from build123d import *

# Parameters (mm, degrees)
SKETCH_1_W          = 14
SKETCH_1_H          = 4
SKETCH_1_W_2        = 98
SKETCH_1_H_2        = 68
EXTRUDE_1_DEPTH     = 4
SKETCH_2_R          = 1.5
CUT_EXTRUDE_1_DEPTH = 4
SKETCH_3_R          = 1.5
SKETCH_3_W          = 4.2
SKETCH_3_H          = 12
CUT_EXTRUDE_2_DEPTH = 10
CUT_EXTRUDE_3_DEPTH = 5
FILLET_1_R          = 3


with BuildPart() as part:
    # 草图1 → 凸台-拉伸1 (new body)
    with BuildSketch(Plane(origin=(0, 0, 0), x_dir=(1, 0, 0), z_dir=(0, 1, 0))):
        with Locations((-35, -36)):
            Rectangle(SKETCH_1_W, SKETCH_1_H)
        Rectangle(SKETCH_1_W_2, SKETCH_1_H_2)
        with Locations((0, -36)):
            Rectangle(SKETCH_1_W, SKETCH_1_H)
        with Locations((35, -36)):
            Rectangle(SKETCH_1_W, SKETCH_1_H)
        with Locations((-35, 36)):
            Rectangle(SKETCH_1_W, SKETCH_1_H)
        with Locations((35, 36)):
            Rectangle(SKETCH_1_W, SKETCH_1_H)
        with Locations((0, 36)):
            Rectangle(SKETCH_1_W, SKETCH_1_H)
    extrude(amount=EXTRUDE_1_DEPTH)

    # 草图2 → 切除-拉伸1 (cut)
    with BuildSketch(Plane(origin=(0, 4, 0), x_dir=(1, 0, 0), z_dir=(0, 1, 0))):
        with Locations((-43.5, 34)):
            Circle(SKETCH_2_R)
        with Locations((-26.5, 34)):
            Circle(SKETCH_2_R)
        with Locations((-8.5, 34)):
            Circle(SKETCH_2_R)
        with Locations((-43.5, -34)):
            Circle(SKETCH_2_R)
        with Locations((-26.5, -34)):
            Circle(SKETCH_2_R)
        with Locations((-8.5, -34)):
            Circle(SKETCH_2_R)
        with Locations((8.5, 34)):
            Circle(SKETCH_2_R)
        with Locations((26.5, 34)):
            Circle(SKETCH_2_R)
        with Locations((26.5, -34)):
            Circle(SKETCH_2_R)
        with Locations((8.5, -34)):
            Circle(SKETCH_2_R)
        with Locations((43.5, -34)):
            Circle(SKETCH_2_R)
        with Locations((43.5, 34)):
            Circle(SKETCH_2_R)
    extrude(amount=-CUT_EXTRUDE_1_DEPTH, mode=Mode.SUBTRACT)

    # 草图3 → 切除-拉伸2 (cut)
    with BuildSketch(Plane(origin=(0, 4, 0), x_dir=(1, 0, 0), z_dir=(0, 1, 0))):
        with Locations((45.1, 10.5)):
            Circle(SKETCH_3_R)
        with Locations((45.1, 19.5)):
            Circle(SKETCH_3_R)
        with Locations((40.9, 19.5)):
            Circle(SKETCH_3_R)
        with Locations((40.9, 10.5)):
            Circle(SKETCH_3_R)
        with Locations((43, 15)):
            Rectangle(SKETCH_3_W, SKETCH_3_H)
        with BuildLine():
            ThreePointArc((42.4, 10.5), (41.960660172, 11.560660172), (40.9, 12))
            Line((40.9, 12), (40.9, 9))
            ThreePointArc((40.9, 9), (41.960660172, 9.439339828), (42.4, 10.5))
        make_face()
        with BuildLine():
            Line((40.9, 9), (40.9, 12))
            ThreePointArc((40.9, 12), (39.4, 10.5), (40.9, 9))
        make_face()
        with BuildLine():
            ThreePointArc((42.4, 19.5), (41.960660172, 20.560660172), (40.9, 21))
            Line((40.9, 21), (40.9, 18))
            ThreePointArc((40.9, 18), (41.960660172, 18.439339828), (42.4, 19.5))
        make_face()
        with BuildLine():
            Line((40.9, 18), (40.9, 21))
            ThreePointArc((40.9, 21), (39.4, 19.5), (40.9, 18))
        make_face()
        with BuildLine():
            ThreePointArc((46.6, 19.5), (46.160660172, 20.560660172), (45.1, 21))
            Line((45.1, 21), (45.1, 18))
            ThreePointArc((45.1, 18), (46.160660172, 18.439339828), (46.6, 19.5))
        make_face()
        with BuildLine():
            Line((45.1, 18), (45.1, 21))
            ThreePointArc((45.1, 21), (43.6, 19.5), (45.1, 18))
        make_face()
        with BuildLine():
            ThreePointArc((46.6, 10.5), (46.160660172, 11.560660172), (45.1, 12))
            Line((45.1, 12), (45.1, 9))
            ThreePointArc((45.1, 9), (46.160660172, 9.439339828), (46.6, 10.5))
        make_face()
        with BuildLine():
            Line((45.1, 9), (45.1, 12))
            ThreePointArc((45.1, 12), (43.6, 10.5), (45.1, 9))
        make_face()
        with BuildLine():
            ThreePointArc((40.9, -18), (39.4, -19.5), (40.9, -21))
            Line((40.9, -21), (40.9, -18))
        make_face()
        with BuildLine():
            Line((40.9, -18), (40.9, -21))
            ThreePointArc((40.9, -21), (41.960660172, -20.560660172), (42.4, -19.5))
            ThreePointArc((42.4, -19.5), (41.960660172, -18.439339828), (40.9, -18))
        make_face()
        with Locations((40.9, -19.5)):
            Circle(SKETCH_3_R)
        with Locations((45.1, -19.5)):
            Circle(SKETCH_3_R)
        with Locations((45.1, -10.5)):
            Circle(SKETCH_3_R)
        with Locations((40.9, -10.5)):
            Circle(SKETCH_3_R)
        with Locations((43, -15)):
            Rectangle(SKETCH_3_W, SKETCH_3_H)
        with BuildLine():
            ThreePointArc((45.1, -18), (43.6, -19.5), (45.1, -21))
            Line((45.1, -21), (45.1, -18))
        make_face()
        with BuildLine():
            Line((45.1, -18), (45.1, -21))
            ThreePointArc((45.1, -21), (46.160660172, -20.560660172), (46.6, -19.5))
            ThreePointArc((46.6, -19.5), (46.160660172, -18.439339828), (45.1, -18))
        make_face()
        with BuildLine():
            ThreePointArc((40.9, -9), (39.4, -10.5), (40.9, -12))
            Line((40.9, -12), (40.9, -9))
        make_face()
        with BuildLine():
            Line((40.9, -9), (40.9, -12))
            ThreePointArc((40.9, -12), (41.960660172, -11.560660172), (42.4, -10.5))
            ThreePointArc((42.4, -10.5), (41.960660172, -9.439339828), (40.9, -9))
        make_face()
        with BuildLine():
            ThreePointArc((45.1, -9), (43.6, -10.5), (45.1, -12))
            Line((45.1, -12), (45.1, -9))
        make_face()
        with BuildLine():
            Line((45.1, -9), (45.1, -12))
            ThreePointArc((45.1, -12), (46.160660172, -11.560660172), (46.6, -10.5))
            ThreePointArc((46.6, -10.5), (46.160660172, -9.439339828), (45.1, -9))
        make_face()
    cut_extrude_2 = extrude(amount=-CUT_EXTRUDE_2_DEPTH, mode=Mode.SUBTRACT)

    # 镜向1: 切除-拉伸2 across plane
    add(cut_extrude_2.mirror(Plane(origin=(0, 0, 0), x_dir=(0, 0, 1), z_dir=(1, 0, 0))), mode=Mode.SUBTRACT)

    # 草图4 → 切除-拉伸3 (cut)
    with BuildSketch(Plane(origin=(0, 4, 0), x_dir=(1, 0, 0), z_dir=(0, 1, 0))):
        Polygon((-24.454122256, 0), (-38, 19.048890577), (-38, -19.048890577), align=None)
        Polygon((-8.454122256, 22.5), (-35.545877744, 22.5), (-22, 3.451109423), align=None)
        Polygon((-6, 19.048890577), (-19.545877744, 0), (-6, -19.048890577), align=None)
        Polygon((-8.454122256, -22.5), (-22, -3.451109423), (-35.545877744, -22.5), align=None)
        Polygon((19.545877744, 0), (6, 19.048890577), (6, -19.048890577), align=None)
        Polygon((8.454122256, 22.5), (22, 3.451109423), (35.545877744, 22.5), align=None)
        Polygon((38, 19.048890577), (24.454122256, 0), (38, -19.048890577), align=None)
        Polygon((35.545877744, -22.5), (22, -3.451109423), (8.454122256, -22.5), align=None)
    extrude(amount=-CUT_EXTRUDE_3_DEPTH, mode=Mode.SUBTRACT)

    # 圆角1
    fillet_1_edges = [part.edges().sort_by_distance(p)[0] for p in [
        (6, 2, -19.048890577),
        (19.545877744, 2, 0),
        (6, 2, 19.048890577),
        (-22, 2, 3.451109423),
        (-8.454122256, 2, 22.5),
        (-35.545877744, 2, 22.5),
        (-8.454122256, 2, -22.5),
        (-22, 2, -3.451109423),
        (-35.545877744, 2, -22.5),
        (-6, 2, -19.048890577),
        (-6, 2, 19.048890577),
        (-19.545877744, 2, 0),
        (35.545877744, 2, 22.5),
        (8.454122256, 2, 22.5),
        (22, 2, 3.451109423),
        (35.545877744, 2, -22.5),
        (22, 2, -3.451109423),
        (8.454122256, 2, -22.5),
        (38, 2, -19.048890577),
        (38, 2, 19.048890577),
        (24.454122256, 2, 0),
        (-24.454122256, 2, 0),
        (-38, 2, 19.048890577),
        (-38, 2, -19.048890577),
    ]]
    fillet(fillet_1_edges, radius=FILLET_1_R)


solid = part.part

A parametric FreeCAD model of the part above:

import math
import FreeCAD as App
import Part
import Sketcher

V = App.Vector
Q = App.Units.Quantity


def edges_at(feature, points):
    """Names of the edges that pass closest to the given points."""
    edges = feature.Shape.Edges
    near = lambda p: min(range(len(edges)), key=lambda i: edges[i].distToShape(Part.Vertex(*p))[0])
    return sorted({f"Edge{near(p) + 1}" for p in points})


def add_polygon(sketch, points):
    """Adds a closed chain of lines whose ends are joined by coincident constraints."""
    first, n = sketch.GeometryCount, len(points)
    for a, b in zip(points, points[1:] + points[:1]):
        sketch.addGeometry(Part.LineSegment(App.Vector(*a, 0), App.Vector(*b, 0)), False)
    for i in range(n):
        sketch.addConstraint(Sketcher.Constraint("Coincident", first + i, 2, first + (i + 1) % n, 1))

doc = App.newDocument("Part")
body = doc.addObject("PartDesign::Body", "Body")

# Sketch on XZ plane
sketch1 = doc.addObject("Sketcher::SketchObject", "Sketch")
body.addObject(sketch1)
sketch1.AttachmentSupport = (doc.XZ_Plane, [""])
sketch1.MapMode = "FlatFace"
add_polygon(sketch1, [(-42, 34), (-42, 38), (-28, 38), (-28, 34), (-7, 34), (-7, 38), (7, 38), (7, 34), (28, 34), (28, 38), (42, 38), (42, 34), (49, 34), (49, -34), (42, -34), (42, -38), (28, -38), (28, -34), (7, -34), (7, -38), (-7, -38), (-7, -34), (-28, -34), (-28, -38), (-42, -38), (-42, -34), (-49, -34), (-49, 34)])  # lines 0-27
sketch1.addConstraint([
    Sketcher.Constraint("Vertical", 0),
    Sketcher.Constraint("Horizontal", 1),
    Sketcher.Constraint("Vertical", 2),
    Sketcher.Constraint("Horizontal", 3),
    Sketcher.Constraint("Vertical", 4),
    Sketcher.Constraint("Horizontal", 5),
    Sketcher.Constraint("Vertical", 6),
    Sketcher.Constraint("Horizontal", 7),
    Sketcher.Constraint("Vertical", 8),
    Sketcher.Constraint("Horizontal", 9),
    Sketcher.Constraint("Vertical", 10),
    Sketcher.Constraint("Horizontal", 11),
    Sketcher.Constraint("Vertical", 12),
    Sketcher.Constraint("Horizontal", 13),
    Sketcher.Constraint("Vertical", 14),
    Sketcher.Constraint("Horizontal", 15),
    Sketcher.Constraint("Vertical", 16),
    Sketcher.Constraint("Horizontal", 17),
    Sketcher.Constraint("Vertical", 18),
    Sketcher.Constraint("Horizontal", 19),
    Sketcher.Constraint("Vertical", 20),
    Sketcher.Constraint("Horizontal", 21),
    Sketcher.Constraint("Vertical", 22),
    Sketcher.Constraint("Horizontal", 23),
    Sketcher.Constraint("Vertical", 24),
    Sketcher.Constraint("Horizontal", 25),
    Sketcher.Constraint("Vertical", 26),
    Sketcher.Constraint("Horizontal", 27),
    Sketcher.Constraint("Symmetric", 0, 2, 14, 2, -1, 1),
    Sketcher.Constraint("Symmetric", 2, 2, 16, 2, -1, 1),
    Sketcher.Constraint("Symmetric", 4, 2, 18, 2, -1, 1),
    Sketcher.Constraint("Symmetric", 6, 2, 20, 2, -1, 1),
    Sketcher.Constraint("Symmetric", 8, 2, 22, 2, -1, 1),
    Sketcher.Constraint("Symmetric", 10, 2, 24, 2, -1, 1),
    Sketcher.Constraint("Symmetric", 12, 2, 26, 2, -1, 1),
    Sketcher.Constraint("Symmetric", 3, 2, 6, 2, -2),
    Sketcher.Constraint("Symmetric", 1, 2, 8, 2, -2),
    Sketcher.Constraint("Symmetric", 13, 2, 24, 2, -2),
    Sketcher.Constraint("Horizontal", 1, 2, 4, 2),
    Sketcher.Constraint("Horizontal", 7, 2, 10, 2),
    Sketcher.Constraint("Equal", 1, 5),
    Sketcher.Constraint("DistanceX", 1, 1, 1, 2, Q("14 mm")),
    Sketcher.Constraint("DistanceX", 3, 1, 3, 2, Q("21 mm")),
    Sketcher.Constraint("DistanceX", 11, 1, 11, 2, Q("7 mm")),
    Sketcher.Constraint("DistanceY", 0, 1, 0, 2, Q("4 mm")),
    Sketcher.Constraint("DistanceY", 12, 2, 12, 1, Q("68 mm")),
])
pad1 = doc.addObject("PartDesign::Pad", "Pad")
body.addObject(pad1)
pad1.Profile = sketch1
pad1.Length = 4
pad1.Reversed = True

# Sketch on XZ plane
sketch2 = doc.addObject("Sketcher::SketchObject", "Sketch001")
body.addObject(sketch2)
sketch2.AttachmentSupport = (doc.XZ_Plane, [""])
sketch2.MapMode = "FlatFace"
sketch2.AttachmentOffset = App.Placement(V(0, 0, -4), App.Rotation())
sketch2.addGeometry([
    Part.Circle(V(-43.5, -34, 0), V(0, 0, 1), 1.5),  # 0
    Part.Circle(V(-26.5, -34, 0), V(0, 0, 1), 1.5),  # 1
    Part.Circle(V(-8.5, -34, 0), V(0, 0, 1), 1.5),  # 2
    Part.Circle(V(-43.5, 34, 0), V(0, 0, 1), 1.5),  # 3
    Part.Circle(V(-26.5, 34, 0), V(0, 0, 1), 1.5),  # 4
    Part.Circle(V(-8.5, 34, 0), V(0, 0, 1), 1.5),  # 5
    Part.Circle(V(8.5, -34, 0), V(0, 0, 1), 1.5),  # 6
    Part.Circle(V(26.5, -34, 0), V(0, 0, 1), 1.5),  # 7
    Part.Circle(V(26.5, 34, 0), V(0, 0, 1), 1.5),  # 8
    Part.Circle(V(8.5, 34, 0), V(0, 0, 1), 1.5),  # 9
    Part.Circle(V(43.5, 34, 0), V(0, 0, 1), 1.5),  # 10
    Part.Circle(V(43.5, -34, 0), V(0, 0, 1), 1.5),  # 11
], False)
sketch2.addConstraint([
    Sketcher.Constraint("Equal", 0, 1),
    Sketcher.Constraint("Equal", 1, 2),
    Sketcher.Constraint("Equal", 2, 3),
    Sketcher.Constraint("Equal", 3, 4),
    Sketcher.Constraint("Equal", 4, 5),
    Sketcher.Constraint("Equal", 5, 6),
    Sketcher.Constraint("Equal", 6, 7),
    Sketcher.Constraint("Equal", 7, 8),
    Sketcher.Constraint("Equal", 8, 9),
    Sketcher.Constraint("Equal", 9, 10),
    Sketcher.Constraint("Equal", 10, 11),
    Sketcher.Constraint("Symmetric", 5, 3, 6, 3, -1, 1),
    Sketcher.Constraint("Symmetric", 4, 3, 7, 3, -1, 1),
    Sketcher.Constraint("Symmetric", 1, 3, 8, 3, -1, 1),
    Sketcher.Constraint("Symmetric", 2, 3, 9, 3, -1, 1),
    Sketcher.Constraint("Symmetric", 0, 3, 10, 3, -1, 1),
    Sketcher.Constraint("Symmetric", 3, 3, 11, 3, -1, 1),
    Sketcher.Constraint("Symmetric", 2, 3, 6, 3, -2),
    Sketcher.Constraint("Symmetric", 1, 3, 7, 3, -2),
    Sketcher.Constraint("Symmetric", 3, 3, 10, 3, -2),
    Sketcher.Constraint("Horizontal", 0, 3, 1, 3),
    Sketcher.Constraint("Horizontal", 1, 3, 2, 3),
    Sketcher.Constraint("Diameter", 0, Q("3 mm")),
    Sketcher.Constraint("DistanceY", 0, 3, -1, 1, Q("34 mm")),
    Sketcher.Constraint("DistanceX", 0, 3, 1, 3, Q("17 mm")),
    Sketcher.Constraint("DistanceX", 1, 3, 2, 3, Q("18 mm")),
    Sketcher.Constraint("DistanceX", 2, 3, 6, 3, Q("17 mm")),
])
pocket1 = doc.addObject("PartDesign::Pocket", "Pocket")
body.addObject(pocket1)
pocket1.Profile = sketch2
pocket1.Length = 4
pocket1.Reversed = True

# Sketch on XZ plane
sketch3 = doc.addObject("Sketcher::SketchObject", "Sketch002")
body.addObject(sketch3)
sketch3.AttachmentSupport = (doc.XZ_Plane, [""])
sketch3.MapMode = "FlatFace"
sketch3.AttachmentOffset = App.Placement(V(0, 0, -4), App.Rotation())
sketch3.addGeometry([
    Part.LineSegment(V(40.9, -18, 0), V(40.9, -12, 0)),  # 0
    Part.ArcOfCircle(Part.Circle(V(40.9, -10.5, 0), V(0, 0, 1), 1.5), math.radians(90), math.radians(270)),  # 1
    Part.LineSegment(V(40.9, -9, 0), V(45.1, -9, 0)),  # 2
    Part.ArcOfCircle(Part.Circle(V(45.1, -10.5, 0), V(0, 0, 1), 1.5), math.radians(-90), math.radians(90)),  # 3
    Part.LineSegment(V(45.1, -12, 0), V(45.1, -18, 0)),  # 4
    Part.ArcOfCircle(Part.Circle(V(45.1, -19.5, 0), V(0, 0, 1), 1.5), math.radians(-90), math.radians(90)),  # 5
    Part.LineSegment(V(45.1, -21, 0), V(40.9, -21, 0)),  # 6
    Part.ArcOfCircle(Part.Circle(V(40.9, -19.5, 0), V(0, 0, 1), 1.5), math.radians(90), math.radians(270)),  # 7
    Part.LineSegment(V(40.9, 12, 0), V(40.9, 18, 0)),  # 8
    Part.ArcOfCircle(Part.Circle(V(40.9, 19.5, 0), V(0, 0, 1), 1.5), math.radians(90), math.radians(270)),  # 9
    Part.LineSegment(V(40.9, 21, 0), V(45.1, 21, 0)),  # 10
    Part.ArcOfCircle(Part.Circle(V(45.1, 19.5, 0), V(0, 0, 1), 1.5), math.radians(-90), math.radians(90)),  # 11
    Part.LineSegment(V(45.1, 18, 0), V(45.1, 12, 0)),  # 12
    Part.ArcOfCircle(Part.Circle(V(45.1, 10.5, 0), V(0, 0, 1), 1.5), math.radians(-90), math.radians(90)),  # 13
    Part.LineSegment(V(45.1, 9, 0), V(40.9, 9, 0)),  # 14
    Part.ArcOfCircle(Part.Circle(V(40.9, 10.5, 0), V(0, 0, 1), 1.5), math.radians(90), math.radians(270)),  # 15
], False)
sketch3.addConstraint([
    Sketcher.Constraint("Coincident", 0, 2, 1, 2),
    Sketcher.Constraint("Tangent", 1, 1, 2, 1),
    Sketcher.Constraint("Tangent", 2, 2, 3, 2),
    Sketcher.Constraint("Coincident", 3, 1, 4, 1),
    Sketcher.Constraint("Coincident", 4, 2, 5, 2),
    Sketcher.Constraint("Tangent", 5, 1, 6, 1),
    Sketcher.Constraint("Tangent", 6, 2, 7, 2),
    Sketcher.Constraint("Coincident", 7, 1, 0, 1),
    Sketcher.Constraint("Coincident", 8, 2, 9, 2),
    Sketcher.Constraint("Tangent", 9, 1, 10, 1),
    Sketcher.Constraint("Tangent", 10, 2, 11, 2),
    Sketcher.Constraint("Coincident", 11, 1, 12, 1),
    Sketcher.Constraint("Coincident", 12, 2, 13, 2),
    Sketcher.Constraint("Tangent", 13, 1, 14, 1),
    Sketcher.Constraint("Tangent", 14, 2, 15, 2),
    Sketcher.Constraint("Coincident", 15, 1, 8, 1),
    Sketcher.Constraint("Vertical", 0),
    Sketcher.Constraint("Horizontal", 2),
    Sketcher.Constraint("Vertical", 4),
    Sketcher.Constraint("Horizontal", 6),
    Sketcher.Constraint("Vertical", 8),
    Sketcher.Constraint("Horizontal", 10),
    Sketcher.Constraint("Vertical", 12),
    Sketcher.Constraint("Horizontal", 14),
    Sketcher.Constraint("Equal", 1, 3),
    Sketcher.Constraint("Equal", 3, 5),
    Sketcher.Constraint("Equal", 5, 7),
    Sketcher.Constraint("Equal", 7, 9),
    Sketcher.Constraint("Equal", 9, 11),
    Sketcher.Constraint("Equal", 11, 13),
    Sketcher.Constraint("Equal", 13, 15),
    Sketcher.Constraint("Symmetric", 7, 3, 9, 3, -1),
    Sketcher.Constraint("Symmetric", 3, 3, 13, 3, -1),
    Sketcher.Constraint("Vertical", 3, 3, 5, 3),
    Sketcher.Constraint("Vertical", 1, 3, 7, 3),
    Sketcher.Constraint("Vertical", 5, 3, 11, 3),
    Sketcher.Constraint("Vertical", 9, 3, 15, 3),
    Sketcher.Constraint("Vertical", 15, 3, 0, 2),
    Sketcher.Constraint("Vertical", 2, 2, 3, 1),
    Sketcher.Constraint("Vertical", 7, 1, 8, 2),
    Sketcher.Constraint("Vertical", 10, 2, 11, 1),
    Sketcher.Constraint("Radius", 1, Q("1.5 mm")),
    Sketcher.Constraint("DistanceY", 0, 1, 0, 2, Q("6 mm")),
    Sketcher.Constraint("DistanceX", 2, 1, 2, 2, Q("4.2 mm")),
    Sketcher.Constraint("DistanceY", 0, 2, -1, 1, Q("12 mm")),
    Sketcher.Constraint("DistanceX", -1, 1, 1, 3, Q("40.9 mm")),
])
pocket2 = doc.addObject("PartDesign::Pocket", "Pocket001")
body.addObject(pocket2)
pocket2.Profile = sketch3
pocket2.Length = 10
pocket2.Reversed = True
doc.recompute()

mirrored = doc.addObject("PartDesign::Mirrored", "Mirrored")
body.addObject(mirrored)
mirrored.Originals = [pocket2]
mirrored.MirrorPlane = (doc.YZ_Plane, [""])
body.Tip = mirrored

# Sketch on XZ plane
sketch4 = doc.addObject("Sketcher::SketchObject", "Sketch003")
body.addObject(sketch4)
sketch4.AttachmentSupport = (doc.XZ_Plane, [""])
sketch4.MapMode = "FlatFace"
sketch4.AttachmentOffset = App.Placement(V(0, 0, -4), App.Rotation())
add_polygon(sketch4, [(-24.454122, 0), (-38, -19.048891), (-38, 19.048891)])  # lines 0-2
add_polygon(sketch4, [(-8.454122, -22.5), (-35.545878, -22.5), (-22, -3.451109)])  # lines 3-5
add_polygon(sketch4, [(-6, -19.048891), (-19.545878, 0), (-6, 19.048891)])  # lines 6-8
add_polygon(sketch4, [(-8.454122, 22.5), (-22, 3.451109), (-35.545878, 22.5)])  # lines 9-11
add_polygon(sketch4, [(19.545878, 0), (6, -19.048891), (6, 19.048891)])  # lines 12-14
add_polygon(sketch4, [(8.454122, -22.5), (22, -3.451109), (35.545878, -22.5)])  # lines 15-17
add_polygon(sketch4, [(38, -19.048891), (24.454122, 0), (38, 19.048891)])  # lines 18-20
add_polygon(sketch4, [(35.545878, 22.5), (22, 3.451109), (8.454122, 22.5)])  # lines 21-23
sketch4.addConstraint([
    Sketcher.Constraint("Vertical", 1),
    Sketcher.Constraint("Horizontal", 3),
    Sketcher.Constraint("Vertical", 8),
    Sketcher.Constraint("Horizontal", 11),
    Sketcher.Constraint("Vertical", 13),
    Sketcher.Constraint("Horizontal", 17),
    Sketcher.Constraint("Vertical", 20),
    Sketcher.Constraint("Horizontal", 23),
    Sketcher.Constraint("Symmetric", 7, 2, 12, 2, -1, 1),
    Sketcher.Constraint("Symmetric", 6, 2, 14, 2, -1, 1),
    Sketcher.Constraint("Symmetric", 9, 2, 15, 2, -1, 1),
    Sketcher.Constraint("Symmetric", 10, 2, 16, 2, -1, 1),
    Sketcher.Constraint("Symmetric", 2, 2, 18, 2, -1, 1),
    Sketcher.Constraint("Symmetric", 0, 2, 19, 2, -1, 1),
    Sketcher.Constraint("Symmetric", 4, 2, 21, 2, -1, 1),
    Sketcher.Constraint("Symmetric", 5, 2, 22, 2, -1, 1),
    Sketcher.Constraint("Symmetric", 4, 2, 15, 2, -2),
    Sketcher.Constraint("Symmetric", 3, 2, 16, 2, -2),
    Sketcher.Constraint("PointOnObject", 2, 2, -1),
    Sketcher.Constraint("PointOnObject", 6, 2, -1),
    Sketcher.Constraint("Parallel", 0, 4),
    Sketcher.Constraint("Parallel", 2, 5),
    Sketcher.Constraint("Parallel", 5, 6),
    Sketcher.Constraint("Parallel", 4, 7),
    Sketcher.Constraint("Parallel", 7, 9),
    Sketcher.Constraint("Parallel", 6, 10),
    Sketcher.Constraint("Parallel", 10, 14),
    Sketcher.Constraint("Parallel", 12, 15),
    Sketcher.Constraint("Parallel", 16, 18),
    Sketcher.Constraint("Parallel", 19, 21),
    Sketcher.Constraint("Horizontal", 1, 2, 7, 2),
    Sketcher.Constraint("Equal", 2, 4),
    Sketcher.Constraint("DistanceX", 0, 2, -1, 1, Q("38 mm")),
    Sketcher.Constraint("DistanceX", 4, 2, -1, 1, Q("22 mm")),
    Sketcher.Constraint("DistanceX", 7, 2, -1, 1, Q("6 mm")),
    Sketcher.Constraint("DistanceY", 3, 2, -1, 1, Q("22.5 mm")),
    Sketcher.Constraint("DistanceY", 1, 1, 1, 2, Q("38.097781 mm")),
    Sketcher.Constraint("DistanceX", 3, 2, 3, 1, Q("27.091755 mm")),
])
pocket3 = doc.addObject("PartDesign::Pocket", "Pocket002")
body.addObject(pocket3)
pocket3.Profile = sketch4
pocket3.Length = 5
pocket3.Reversed = True
doc.recompute()

fillet = doc.addObject("PartDesign::Fillet", "Fillet")
body.addObject(fillet)
fillet.Base = (pocket3, edges_at(pocket3, [
    (6, 2, -19.049),
    (19.546, 2, 0),
    (6, 2, 19.049),
    (-22, 2, 3.451),
    (-8.454, 2, 22.5),
    (-35.546, 2, 22.5),
    (-8.454, 2, -22.5),
    (-22, 2, -3.451),
    (-35.546, 2, -22.5),
    (-6, 2, -19.049),
    (-6, 2, 19.049),
    (-19.546, 2, 0),
    (35.546, 2, 22.5),
    (8.454, 2, 22.5),
    (22, 2, 3.451),
    (35.546, 2, -22.5),
    (22, 2, -3.451),
    (8.454, 2, -22.5),
    (38, 2, -19.049),
    (38, 2, 19.049),
    (24.454, 2, 0),
    (-24.454, 2, 0),
    (-38, 2, 19.049),
    (-38, 2, -19.049),
]))
fillet.Radius = 3

doc.recompute()
